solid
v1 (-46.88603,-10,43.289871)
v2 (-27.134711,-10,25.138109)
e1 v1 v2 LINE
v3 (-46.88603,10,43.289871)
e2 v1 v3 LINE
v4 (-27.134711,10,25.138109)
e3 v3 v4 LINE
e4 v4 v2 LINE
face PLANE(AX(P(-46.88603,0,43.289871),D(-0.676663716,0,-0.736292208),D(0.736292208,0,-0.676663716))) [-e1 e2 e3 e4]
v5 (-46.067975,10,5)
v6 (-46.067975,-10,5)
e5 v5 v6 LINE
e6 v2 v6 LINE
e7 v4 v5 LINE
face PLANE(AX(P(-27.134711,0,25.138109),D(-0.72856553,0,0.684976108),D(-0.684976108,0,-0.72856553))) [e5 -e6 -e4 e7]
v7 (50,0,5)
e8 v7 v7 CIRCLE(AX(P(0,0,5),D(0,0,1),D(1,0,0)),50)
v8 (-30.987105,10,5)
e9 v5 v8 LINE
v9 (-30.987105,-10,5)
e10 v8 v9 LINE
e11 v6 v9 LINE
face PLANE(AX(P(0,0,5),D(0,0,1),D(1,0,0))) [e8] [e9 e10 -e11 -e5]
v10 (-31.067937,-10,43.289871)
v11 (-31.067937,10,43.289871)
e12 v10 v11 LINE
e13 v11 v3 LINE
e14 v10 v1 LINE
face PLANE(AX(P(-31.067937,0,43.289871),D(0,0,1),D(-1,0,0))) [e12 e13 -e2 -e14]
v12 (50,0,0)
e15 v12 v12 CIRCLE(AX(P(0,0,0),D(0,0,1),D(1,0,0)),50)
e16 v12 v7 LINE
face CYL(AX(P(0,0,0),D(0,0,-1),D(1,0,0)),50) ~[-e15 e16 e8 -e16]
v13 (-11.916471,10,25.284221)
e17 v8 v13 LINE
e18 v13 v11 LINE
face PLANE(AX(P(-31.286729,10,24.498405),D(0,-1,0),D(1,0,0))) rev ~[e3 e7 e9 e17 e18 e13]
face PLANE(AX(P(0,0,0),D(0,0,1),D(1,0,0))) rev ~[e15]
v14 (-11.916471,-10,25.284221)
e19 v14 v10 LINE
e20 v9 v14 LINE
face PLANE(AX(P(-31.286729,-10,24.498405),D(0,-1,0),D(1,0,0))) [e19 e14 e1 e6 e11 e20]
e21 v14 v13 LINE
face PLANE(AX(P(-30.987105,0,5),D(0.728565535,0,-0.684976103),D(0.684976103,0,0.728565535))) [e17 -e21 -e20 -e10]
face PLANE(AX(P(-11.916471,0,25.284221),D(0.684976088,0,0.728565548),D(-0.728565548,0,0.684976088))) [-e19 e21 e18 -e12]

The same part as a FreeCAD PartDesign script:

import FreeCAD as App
import Part
import Sketcher
from FreeCAD import Vector
Q = App.Units.Quantity


def add_polygon(sketch, points):
    """Adds a closed chain of lines whose ends are joined by coincident constraints."""
    first, n = sketch.GeometryCount, len(points)
    for a, b in zip(points, points[1:] + points[:1]):
        sketch.addGeometry(Part.LineSegment(App.Vector(*a, 0), App.Vector(*b, 0)), False)
    for i in range(n):
        sketch.addConstraint(Sketcher.Constraint("Coincident", first + i, 2, first + (i + 1) % n, 1))

doc = App.newDocument("Part")
body = doc.addObject("PartDesign::Body", "Body")

sketch1 = body.newObject("Sketcher::SketchObject", "Sketch")
sketch1.AttachmentSupport = (doc.getObject("XY_Plane"), [""])
sketch1.MapMode = "FlatFace"
sketch1.addGeometry(Part.Circle(Vector(0, 0, 0), Vector(0, 0, 1), 50), False)
sketch1.addConstraint(Sketcher.Constraint("Coincident", 0, 3, -1, 1))
sketch1.addConstraint(Sketcher.Constraint("Diameter", 0, Q("100 mm")))
pad1 = body.newObject("PartDesign::Pad", "Pad")
pad1.Profile = sketch1
pad1.Length = 5

sketch2 = body.newObject("Sketcher::SketchObject", "Sketch001")
sketch2.AttachmentSupport = (doc.getObject("XZ_Plane"), [""])
sketch2.MapMode = "FlatFace"
add_polygon(sketch2, [(-47, 43), (-27, 25), (-46, 5), (-31, 5), (-12, 25), (-31, 43)])
sketch2.addConstraint(Sketcher.Constraint("Horizontal", 2))
sketch2.addConstraint(Sketcher.Constraint("Horizontal", 5))
sketch2.addConstraint(Sketcher.Constraint("Parallel", 1, 3))
sketch2.addConstraint(Sketcher.Constraint("Perpendicular", 3, 4))
sketch2.addConstraint(Sketcher.Constraint("DistanceY", -1, 1, 1, 2, Q("5 mm")))
sketch2.addConstraint(Sketcher.Constraint("DistanceX", 2, 1, 2, 2, Q("15.08087 mm")))
sketch2.addConstraint(Sketcher.Constraint("Distance", 0, Q("26.825381 mm")))
sketch2.addConstraint(Sketcher.Constraint("Distance", 4, Q("26.286538 mm")))
sketch2.addConstraint(Sketcher.Constraint("DistanceX", 5, 2, 5, 1, Q("15.818093 mm")))
sketch2.addConstraint(Sketcher.Constraint("DistanceX", 0, 2, -1, 1, Q("27.134711 mm")))
sketch2.addConstraint(Sketcher.Constraint("DistanceY", -1, 1, 0, 2, Q("25.138109 mm")))
sketch2.addConstraint(Sketcher.Constraint("DistanceX", 3, 2, -1, 1, Q("11.916471 mm")))
pad2 = body.newObject("PartDesign::Pad", "Pad001")
pad2.Profile = sketch2
pad2.Length = 20
pad2.Midplane = True

doc.recompute()
